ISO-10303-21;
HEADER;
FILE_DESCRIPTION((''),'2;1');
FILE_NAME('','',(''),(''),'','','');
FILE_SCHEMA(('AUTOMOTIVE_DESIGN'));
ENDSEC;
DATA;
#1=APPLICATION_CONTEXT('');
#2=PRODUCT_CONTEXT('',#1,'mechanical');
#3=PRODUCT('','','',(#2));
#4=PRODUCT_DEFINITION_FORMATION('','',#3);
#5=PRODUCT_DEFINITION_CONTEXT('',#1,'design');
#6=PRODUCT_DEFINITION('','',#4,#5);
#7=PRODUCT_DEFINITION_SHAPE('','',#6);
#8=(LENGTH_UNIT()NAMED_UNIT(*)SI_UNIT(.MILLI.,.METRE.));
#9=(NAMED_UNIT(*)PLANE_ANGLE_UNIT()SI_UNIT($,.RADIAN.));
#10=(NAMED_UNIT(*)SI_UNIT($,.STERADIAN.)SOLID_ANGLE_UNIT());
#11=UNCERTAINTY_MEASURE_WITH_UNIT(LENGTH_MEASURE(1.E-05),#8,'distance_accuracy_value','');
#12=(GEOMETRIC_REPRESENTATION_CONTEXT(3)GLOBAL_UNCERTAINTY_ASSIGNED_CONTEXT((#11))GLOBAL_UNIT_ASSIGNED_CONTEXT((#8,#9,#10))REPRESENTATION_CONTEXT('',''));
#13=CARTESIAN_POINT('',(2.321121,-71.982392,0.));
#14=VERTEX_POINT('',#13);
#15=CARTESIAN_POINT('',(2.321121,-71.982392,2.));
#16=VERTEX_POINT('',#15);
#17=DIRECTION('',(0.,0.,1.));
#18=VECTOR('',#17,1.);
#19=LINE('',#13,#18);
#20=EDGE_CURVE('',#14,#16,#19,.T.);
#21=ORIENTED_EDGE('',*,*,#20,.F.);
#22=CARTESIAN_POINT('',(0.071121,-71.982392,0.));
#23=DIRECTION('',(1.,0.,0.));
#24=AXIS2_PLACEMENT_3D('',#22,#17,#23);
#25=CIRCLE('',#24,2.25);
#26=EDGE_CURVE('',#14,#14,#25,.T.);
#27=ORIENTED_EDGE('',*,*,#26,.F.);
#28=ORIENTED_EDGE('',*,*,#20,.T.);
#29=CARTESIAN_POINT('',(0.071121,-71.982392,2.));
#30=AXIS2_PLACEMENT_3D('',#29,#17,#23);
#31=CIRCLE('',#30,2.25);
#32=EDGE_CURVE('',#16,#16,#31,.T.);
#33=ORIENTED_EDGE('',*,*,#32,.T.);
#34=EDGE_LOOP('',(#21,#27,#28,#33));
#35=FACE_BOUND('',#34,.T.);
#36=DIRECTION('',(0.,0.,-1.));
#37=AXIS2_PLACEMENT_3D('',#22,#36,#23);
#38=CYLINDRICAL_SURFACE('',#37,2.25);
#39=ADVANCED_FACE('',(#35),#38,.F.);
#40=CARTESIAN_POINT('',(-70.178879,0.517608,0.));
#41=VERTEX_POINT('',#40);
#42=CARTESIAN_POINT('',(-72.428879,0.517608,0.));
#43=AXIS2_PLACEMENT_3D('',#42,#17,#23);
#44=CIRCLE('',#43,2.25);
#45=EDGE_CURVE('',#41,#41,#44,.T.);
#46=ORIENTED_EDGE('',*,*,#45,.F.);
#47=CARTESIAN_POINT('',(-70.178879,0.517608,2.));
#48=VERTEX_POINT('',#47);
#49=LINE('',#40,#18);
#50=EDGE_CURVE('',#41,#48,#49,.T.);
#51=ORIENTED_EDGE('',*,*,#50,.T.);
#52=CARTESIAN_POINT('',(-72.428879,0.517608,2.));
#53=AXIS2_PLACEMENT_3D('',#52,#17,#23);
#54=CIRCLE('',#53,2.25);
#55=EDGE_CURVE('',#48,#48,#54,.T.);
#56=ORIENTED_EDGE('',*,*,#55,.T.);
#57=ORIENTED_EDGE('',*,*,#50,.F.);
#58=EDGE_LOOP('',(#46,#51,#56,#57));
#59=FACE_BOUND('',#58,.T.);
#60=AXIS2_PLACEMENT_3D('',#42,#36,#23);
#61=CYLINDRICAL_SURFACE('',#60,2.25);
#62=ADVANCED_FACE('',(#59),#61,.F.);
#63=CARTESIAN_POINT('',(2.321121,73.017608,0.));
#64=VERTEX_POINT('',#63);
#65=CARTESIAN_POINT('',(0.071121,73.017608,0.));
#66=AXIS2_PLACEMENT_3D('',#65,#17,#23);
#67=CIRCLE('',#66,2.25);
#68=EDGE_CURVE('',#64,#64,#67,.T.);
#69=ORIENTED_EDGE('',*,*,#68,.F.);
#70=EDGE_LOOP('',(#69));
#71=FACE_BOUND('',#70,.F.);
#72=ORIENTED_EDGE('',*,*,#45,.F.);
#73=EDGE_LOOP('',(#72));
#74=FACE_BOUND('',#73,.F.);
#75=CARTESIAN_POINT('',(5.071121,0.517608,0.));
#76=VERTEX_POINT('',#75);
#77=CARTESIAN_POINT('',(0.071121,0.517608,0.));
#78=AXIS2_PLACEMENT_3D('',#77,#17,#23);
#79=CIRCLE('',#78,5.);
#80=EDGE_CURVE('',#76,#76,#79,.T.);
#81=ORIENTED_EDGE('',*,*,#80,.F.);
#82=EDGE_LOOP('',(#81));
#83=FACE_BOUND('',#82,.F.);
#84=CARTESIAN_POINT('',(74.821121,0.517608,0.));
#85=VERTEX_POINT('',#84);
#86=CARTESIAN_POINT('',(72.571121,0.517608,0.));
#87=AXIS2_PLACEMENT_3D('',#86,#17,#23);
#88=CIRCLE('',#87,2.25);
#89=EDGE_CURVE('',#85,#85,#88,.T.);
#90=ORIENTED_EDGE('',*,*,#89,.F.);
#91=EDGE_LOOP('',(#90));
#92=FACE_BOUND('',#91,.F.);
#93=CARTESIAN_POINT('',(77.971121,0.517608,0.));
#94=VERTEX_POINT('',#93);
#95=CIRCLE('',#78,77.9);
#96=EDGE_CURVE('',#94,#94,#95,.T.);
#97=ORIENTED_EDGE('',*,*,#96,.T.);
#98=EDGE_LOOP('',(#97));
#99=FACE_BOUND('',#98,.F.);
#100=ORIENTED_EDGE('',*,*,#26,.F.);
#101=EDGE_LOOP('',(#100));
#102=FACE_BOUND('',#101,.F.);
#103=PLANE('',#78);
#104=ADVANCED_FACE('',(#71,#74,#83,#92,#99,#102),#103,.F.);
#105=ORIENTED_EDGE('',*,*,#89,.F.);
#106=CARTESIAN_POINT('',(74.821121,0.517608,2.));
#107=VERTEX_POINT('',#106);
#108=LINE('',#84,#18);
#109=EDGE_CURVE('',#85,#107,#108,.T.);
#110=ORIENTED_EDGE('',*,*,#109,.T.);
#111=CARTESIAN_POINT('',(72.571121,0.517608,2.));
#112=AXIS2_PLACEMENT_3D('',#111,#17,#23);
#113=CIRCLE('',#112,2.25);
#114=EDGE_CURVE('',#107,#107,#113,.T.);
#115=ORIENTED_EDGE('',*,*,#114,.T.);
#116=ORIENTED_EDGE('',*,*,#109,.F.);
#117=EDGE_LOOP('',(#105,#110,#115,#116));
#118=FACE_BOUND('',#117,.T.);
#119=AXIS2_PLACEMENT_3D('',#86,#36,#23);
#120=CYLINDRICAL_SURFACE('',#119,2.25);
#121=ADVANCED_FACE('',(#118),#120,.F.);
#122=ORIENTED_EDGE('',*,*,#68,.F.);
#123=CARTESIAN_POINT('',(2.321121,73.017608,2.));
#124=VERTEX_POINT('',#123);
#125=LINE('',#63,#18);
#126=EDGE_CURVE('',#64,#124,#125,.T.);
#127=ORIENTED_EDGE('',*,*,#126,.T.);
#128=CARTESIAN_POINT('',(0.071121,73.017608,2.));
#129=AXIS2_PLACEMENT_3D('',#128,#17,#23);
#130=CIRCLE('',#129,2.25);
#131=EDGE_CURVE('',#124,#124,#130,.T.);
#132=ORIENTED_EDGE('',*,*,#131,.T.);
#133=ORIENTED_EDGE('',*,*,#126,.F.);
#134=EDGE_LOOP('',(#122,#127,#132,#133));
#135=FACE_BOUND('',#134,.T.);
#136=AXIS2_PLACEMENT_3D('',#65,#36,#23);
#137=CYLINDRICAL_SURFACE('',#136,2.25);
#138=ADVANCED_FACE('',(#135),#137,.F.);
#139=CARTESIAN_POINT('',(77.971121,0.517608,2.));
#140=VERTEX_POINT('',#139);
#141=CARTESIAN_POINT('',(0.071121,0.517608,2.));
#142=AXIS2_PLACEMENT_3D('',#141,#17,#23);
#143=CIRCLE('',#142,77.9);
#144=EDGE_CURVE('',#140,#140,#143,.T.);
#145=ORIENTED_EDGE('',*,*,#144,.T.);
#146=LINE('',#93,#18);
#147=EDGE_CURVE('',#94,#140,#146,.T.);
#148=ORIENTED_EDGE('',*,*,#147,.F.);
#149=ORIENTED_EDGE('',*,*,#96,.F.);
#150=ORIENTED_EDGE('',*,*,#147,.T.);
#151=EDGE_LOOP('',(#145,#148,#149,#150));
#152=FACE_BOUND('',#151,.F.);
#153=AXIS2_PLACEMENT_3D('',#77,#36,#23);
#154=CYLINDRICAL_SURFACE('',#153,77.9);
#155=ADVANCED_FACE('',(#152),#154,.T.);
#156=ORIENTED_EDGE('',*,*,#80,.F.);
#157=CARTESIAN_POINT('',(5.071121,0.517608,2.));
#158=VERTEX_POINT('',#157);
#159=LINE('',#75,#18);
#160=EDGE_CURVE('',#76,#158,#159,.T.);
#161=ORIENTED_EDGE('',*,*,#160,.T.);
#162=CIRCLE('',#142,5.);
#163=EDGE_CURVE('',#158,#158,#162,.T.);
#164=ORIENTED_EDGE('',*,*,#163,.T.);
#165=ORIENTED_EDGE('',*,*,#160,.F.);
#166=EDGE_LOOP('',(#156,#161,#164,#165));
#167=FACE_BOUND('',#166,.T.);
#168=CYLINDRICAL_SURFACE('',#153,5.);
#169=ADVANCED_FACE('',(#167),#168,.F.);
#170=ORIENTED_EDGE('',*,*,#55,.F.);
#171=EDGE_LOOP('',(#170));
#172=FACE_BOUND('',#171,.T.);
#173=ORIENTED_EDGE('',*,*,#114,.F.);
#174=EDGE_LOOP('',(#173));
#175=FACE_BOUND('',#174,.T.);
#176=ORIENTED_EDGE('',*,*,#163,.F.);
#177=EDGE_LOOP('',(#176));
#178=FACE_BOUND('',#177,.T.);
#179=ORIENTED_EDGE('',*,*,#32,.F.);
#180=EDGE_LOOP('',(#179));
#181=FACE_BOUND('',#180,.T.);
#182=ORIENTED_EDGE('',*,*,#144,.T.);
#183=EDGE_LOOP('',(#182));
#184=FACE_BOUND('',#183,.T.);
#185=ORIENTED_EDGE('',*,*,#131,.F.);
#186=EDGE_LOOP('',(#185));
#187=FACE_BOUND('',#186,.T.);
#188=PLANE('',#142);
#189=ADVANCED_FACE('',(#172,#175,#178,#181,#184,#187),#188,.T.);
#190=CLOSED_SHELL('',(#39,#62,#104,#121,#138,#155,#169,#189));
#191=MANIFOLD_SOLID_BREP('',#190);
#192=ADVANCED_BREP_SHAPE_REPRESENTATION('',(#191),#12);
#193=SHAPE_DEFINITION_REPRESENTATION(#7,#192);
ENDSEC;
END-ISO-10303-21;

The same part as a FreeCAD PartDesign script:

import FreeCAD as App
import Part
import Sketcher
from FreeCAD import Vector

doc = App.newDocument("Part")
body = doc.addObject("PartDesign::Body", "Body")

sketch1 = body.newObject("Sketcher::SketchObject", "Sketch")
sketch1.AttachmentSupport = (doc.getObject("XY_Plane"), [""])
sketch1.MapMode = "FlatFace"
sketch1.addGeometry(Part.Circle(Vector(0.1, 0.5, 0), Vector(0, 0, 1), 77.9), False)
sketch1.addGeometry(Part.Circle(Vector(0.1, -72, 0), Vector(0, 0, 1), 2.2), False)
sketch1.addGeometry(Part.Circle(Vector(-72.4, 0.5, 0), Vector(0, 0, 1), 2.2), False)
sketch1.addGeometry(Part.Circle(Vector(0.1, 0.5, 0), Vector(0, 0, 1), 5), False)
sketch1.addGeometry(Part.Circle(Vector(72.6, 0.5, 0), Vector(0, 0, 1), 2.2), False)
sketch1.addGeometry(Part.Circle(Vector(0.1, 73, 0), Vector(0, 0, 1), 2.2), False)
sketch1.addConstraint(Sketcher.Constraint("Coincident", 3, 3, 0, 3))
sketch1.addConstraint(Sketcher.Constraint("Equal", 1, 2))
sketch1.addConstraint(Sketcher.Constraint("Equal", 2, 4))
sketch1.addConstraint(Sketcher.Constraint("Equal", 4, 5))
sketch1.addConstraint(Sketcher.Constraint("Horizontal", 0, 3, 2, 3))
sketch1.addConstraint(Sketcher.Constraint("Horizontal", 3, 3, 4, 3))
sketch1.addConstraint(Sketcher.Constraint("Vertical", 0, 3, 1, 3))
sketch1.addConstraint(Sketcher.Constraint("Vertical", 3, 3, 5, 3))
sketch1.addConstraint(Sketcher.Constraint("Diameter", 3, 10.0))
sketch1.addConstraint(Sketcher.Constraint("Diameter", 0, 155.8))
sketch1.addConstraint(Sketcher.Constraint("Diameter", 1, 4.5))
sketch1.addConstraint(Sketcher.Constraint("DistanceX", 2, 3, 4, 3, 145.0))
sketch1.addConstraint(Sketcher.Constraint("DistanceY", 1, 3, 5, 3, 145.0))
sketch1.addConstraint(Sketcher.Constraint("DistanceY", 1, 3, 0, 3, 72.5))
sketch1.addConstraint(Sketcher.Constraint("DistanceX", 2, 3, 0, 3, 72.5))
sketch1.addConstraint(Sketcher.Constraint("DistanceX", -1, 1, 0, 3, 0.071121))
sketch1.addConstraint(Sketcher.Constraint("DistanceY", -1, 1, 0, 3, 0.517608))
pad1 = body.newObject("PartDesign::Pad", "Pad")
pad1.Profile = sketch1
pad1.Length = 2

doc.recompute()
